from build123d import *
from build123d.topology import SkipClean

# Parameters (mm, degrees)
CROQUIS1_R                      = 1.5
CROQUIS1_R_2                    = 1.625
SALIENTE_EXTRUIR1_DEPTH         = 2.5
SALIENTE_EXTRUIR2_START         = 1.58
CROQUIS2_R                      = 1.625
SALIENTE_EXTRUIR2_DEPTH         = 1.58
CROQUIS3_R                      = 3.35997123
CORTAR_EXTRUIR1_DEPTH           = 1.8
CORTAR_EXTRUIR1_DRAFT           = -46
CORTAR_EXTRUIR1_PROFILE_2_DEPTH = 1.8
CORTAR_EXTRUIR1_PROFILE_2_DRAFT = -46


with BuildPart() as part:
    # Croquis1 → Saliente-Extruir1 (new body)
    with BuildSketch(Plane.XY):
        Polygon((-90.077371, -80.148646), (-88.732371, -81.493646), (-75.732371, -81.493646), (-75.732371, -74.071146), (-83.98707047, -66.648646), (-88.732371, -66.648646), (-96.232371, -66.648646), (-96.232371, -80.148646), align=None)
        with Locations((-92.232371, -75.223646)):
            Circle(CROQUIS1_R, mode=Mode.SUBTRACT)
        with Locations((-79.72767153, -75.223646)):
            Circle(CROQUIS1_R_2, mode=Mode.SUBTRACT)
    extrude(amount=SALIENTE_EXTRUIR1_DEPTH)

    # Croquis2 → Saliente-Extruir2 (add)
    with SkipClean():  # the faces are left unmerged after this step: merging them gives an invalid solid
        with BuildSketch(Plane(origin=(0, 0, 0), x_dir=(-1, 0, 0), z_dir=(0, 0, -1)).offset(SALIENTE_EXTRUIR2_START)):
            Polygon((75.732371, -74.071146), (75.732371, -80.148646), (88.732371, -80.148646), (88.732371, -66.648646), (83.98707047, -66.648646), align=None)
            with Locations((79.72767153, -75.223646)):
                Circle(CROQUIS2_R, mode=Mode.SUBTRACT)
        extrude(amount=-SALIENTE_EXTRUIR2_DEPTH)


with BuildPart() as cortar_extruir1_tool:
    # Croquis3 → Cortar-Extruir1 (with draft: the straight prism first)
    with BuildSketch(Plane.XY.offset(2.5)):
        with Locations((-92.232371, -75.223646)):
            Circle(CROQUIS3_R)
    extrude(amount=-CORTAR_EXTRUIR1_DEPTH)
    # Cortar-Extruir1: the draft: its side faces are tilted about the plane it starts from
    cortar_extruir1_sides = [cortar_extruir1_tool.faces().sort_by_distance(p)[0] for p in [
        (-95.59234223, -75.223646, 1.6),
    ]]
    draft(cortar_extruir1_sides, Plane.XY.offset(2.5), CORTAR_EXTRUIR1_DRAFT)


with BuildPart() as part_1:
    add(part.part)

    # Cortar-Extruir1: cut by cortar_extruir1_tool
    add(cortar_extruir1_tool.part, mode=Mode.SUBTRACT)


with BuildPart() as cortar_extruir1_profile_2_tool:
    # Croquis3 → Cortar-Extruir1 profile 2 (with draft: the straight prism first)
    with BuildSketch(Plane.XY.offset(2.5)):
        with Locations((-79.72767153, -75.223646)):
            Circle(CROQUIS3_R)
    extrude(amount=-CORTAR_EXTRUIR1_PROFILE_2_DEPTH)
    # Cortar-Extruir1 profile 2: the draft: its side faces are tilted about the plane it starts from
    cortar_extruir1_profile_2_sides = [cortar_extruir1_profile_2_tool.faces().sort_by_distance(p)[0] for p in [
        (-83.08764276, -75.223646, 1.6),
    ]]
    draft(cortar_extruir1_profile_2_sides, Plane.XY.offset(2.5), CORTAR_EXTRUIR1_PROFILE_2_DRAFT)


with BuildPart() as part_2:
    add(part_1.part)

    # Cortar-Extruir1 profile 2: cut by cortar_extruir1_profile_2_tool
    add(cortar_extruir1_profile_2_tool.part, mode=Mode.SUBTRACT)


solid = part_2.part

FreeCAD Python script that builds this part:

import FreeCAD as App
import Part
import Sketcher
from FreeCAD import Vector
Q = App.Units.Quantity


def faces_at(feature, points):
    """Names of the faces that lie closest to the given points."""
    faces = feature.Shape.Faces
    near = lambda p: min(range(len(faces)), key=lambda i: faces[i].distToShape(Part.Vertex(*p))[0])
    return sorted({f"Face{near(p) + 1}" for p in points})


def add_polygon(sketch, points):
    """Adds a closed chain of lines whose ends are joined by coincident constraints."""
    first, n = sketch.GeometryCount, len(points)
    for a, b in zip(points, points[1:] + points[:1]):
        sketch.addGeometry(Part.LineSegment(App.Vector(*a, 0), App.Vector(*b, 0)), False)
    for i in range(n):
        sketch.addConstraint(Sketcher.Constraint("Coincident", first + i, 2, first + (i + 1) % n, 1))

doc = App.newDocument("Part")
body = doc.addObject("PartDesign::Body", "Body")

sketch1 = body.newObject("Sketcher::SketchObject", "Sketch")
sketch1.AttachmentSupport = (doc.getObject("XY_Plane"), [""])
sketch1.MapMode = "FlatFace"
add_polygon(sketch1, [(-90.1, -80.1), (-88.7, -81.5), (-75.7, -81.5), (-75.7, -74.1), (-84, -66.6), (-96.2, -66.6), (-96.2, -80.1)])
sketch1.addGeometry(Part.Circle(Vector(-92.2, -75.2, 0), Vector(0, 0, 1), 1.5), False)
sketch1.addGeometry(Part.Circle(Vector(-79.7, -75.2, 0), Vector(0, 0, 1), 1.6), False)
sketch1.addConstraint([
    Sketcher.Constraint("Horizontal", 1),
    Sketcher.Constraint("Vertical", 2),
    Sketcher.Constraint("Horizontal", 4),
    Sketcher.Constraint("Vertical", 5),
    Sketcher.Constraint("Horizontal", 6),
    Sketcher.Constraint("Horizontal", 7, 3, 8, 3),
    Sketcher.Constraint("Diameter", 7, Q("3 mm")),
    Sketcher.Constraint("Diameter", 8, Q("3.25 mm")),
    Sketcher.Constraint("DistanceX", 1, 1, 1, 2, Q("13 mm")),
    Sketcher.Constraint("Angle", 0, Q("-45 deg")),
    Sketcher.Constraint("DistanceY", 5, 2, 5, 1, Q("13.5 mm")),
    Sketcher.Constraint("DistanceX", 4, 2, 7, 3, Q("4 mm")),
    Sketcher.Constraint("DistanceX", 7, 3, 0, 2, Q("3.5 mm")),
    Sketcher.Constraint("DistanceX", 6, 1, 6, 2, Q("6.155 mm")),
    Sketcher.Constraint("DistanceY", 0, 2, 7, 3, Q("6.27 mm")),
    Sketcher.Constraint("DistanceX", 4, 2, 4, 1, Q("12.245301 mm")),
    Sketcher.Constraint("DistanceY", 2, 1, 2, 2, Q("7.4225 mm")),
    Sketcher.Constraint("DistanceX", 7, 3, 8, 3, Q("12.504699 mm")),
    Sketcher.Constraint("DistanceX", 7, 3, -1, 1, Q("92.232371 mm")),
    Sketcher.Constraint("DistanceY", 7, 3, -1, 1, Q("75.223646 mm")),
])
pad1 = body.newObject("PartDesign::Pad", "Pad")
pad1.Profile = sketch1
pad1.Length = 2.5

sketch2 = body.newObject("Sketcher::SketchObject", "Sketch001")
sketch2.AttachmentSupport = (doc.getObject("XY_Plane"), [""])
sketch2.MapMode = "FlatFace"
sketch2.AttachmentOffset = App.Placement(Vector(0, 0, -1.58), App.Rotation())
add_polygon(sketch2, [(-75.7, -74.1), (-75.7, -80.1), (-88.7, -80.1), (-88.7, -66.6), (-84, -66.6)])
sketch2.addGeometry(Part.Circle(Vector(-79.7, -75.2, 0), Vector(0, 0, 1), 1.6), False)
sketch2.addConstraint([
    Sketcher.Constraint("Vertical", 0),
    Sketcher.Constraint("Horizontal", 1),
    Sketcher.Constraint("Vertical", 2),
    Sketcher.Constraint("Horizontal", 3),
    Sketcher.Constraint("Diameter", 5, Q("3.25 mm")),
    Sketcher.Constraint("DistanceX", 1, 2, 1, 1, Q("13 mm")),
    Sketcher.Constraint("DistanceY", 2, 1, 2, 2, Q("13.5 mm")),
    Sketcher.Constraint("DistanceX", 3, 1, 3, 2, Q("4.745301 mm")),
    Sketcher.Constraint("DistanceY", 0, 2, 0, 1, Q("6.0775 mm")),
    Sketcher.Constraint("DistanceY", 0, 2, 5, 3, Q("4.925 mm")),
    Sketcher.Constraint("DistanceX", 5, 3, 0, 2, Q("3.995301 mm")),
    Sketcher.Constraint("DistanceX", 5, 3, -1, 1, Q("79.727672 mm")),
    Sketcher.Constraint("DistanceY", 5, 3, -1, 1, Q("75.223646 mm")),
])
pad2 = body.newObject("PartDesign::Pad", "Pad001")
pad2.Profile = sketch2
pad2.Length = 1.58
body2 = doc.addObject("PartDesign::Body", "Body001")

sketch3 = body2.newObject("Sketcher::SketchObject", "Sketch002")
sketch3.AttachmentSupport = (doc.getObject("XY_Plane001"), [""])
sketch3.MapMode = "FlatFace"
sketch3.AttachmentOffset = App.Placement(Vector(0, 0, 2.5), App.Rotation())
sketch3.addGeometry(Part.Circle(Vector(-92.2, -75.2, 0), Vector(0, 0, 1), 3.4), False)
sketch3.addConstraint([
    Sketcher.Constraint("Diameter", 0, Q("6.719942 mm")),
    Sketcher.Constraint("DistanceX", 0, 3, -1, 1, Q("92.232371 mm")),
    Sketcher.Constraint("DistanceY", 0, 3, -1, 1, Q("75.223646 mm")),
])
pad3 = body2.newObject("PartDesign::Pad", "Pad002")
pad3.Profile = sketch3
pad3.Length = 1.8
pad3.Reversed = True
doc.recompute()

datumplane = body2.newObject("PartDesign::Plane", "DatumPlane")
datumplane.AttachmentSupport = (doc.getObject("XY_Plane001"), [""])
datumplane.MapMode = "FlatFace"
datumplane.AttachmentOffset = App.Placement(Vector(0, 0, 2.5), App.Rotation())
draft = body2.newObject("PartDesign::Draft", "Draft")
draft.Base = (pad3, faces_at(pad3, [(-95.592, -75.224, 1.6)]))
draft.NeutralPlane = (datumplane, [""])
draft.Angle = 46
draft.Reversed = True
doc.recompute()

boolean = body.newObject("PartDesign::Boolean", "Boolean")
boolean.Type = "Cut"
boolean.addObjects([body2])
body3 = doc.addObject("PartDesign::Body", "Body002")

sketch4 = body3.newObject("Sketcher::SketchObject", "Sketch003")
sketch4.AttachmentSupport = (doc.getObject("XY_Plane002"), [""])
sketch4.MapMode = "FlatFace"
sketch4.AttachmentOffset = App.Placement(Vector(0, 0, 2.5), App.Rotation())
sketch4.addGeometry(Part.Circle(Vector(-79.7, -75.2, 0), Vector(0, 0, 1), 3.4), False)
sketch4.addConstraint([
    Sketcher.Constraint("Diameter", 0, Q("6.719942 mm")),
    Sketcher.Constraint("DistanceX", 0, 3, -1, 1, Q("79.727672 mm")),
    Sketcher.Constraint("DistanceY", 0, 3, -1, 1, Q("75.223646 mm")),
])
pad4 = body3.newObject("PartDesign::Pad", "Pad003")
pad4.Profile = sketch4
pad4.Length = 1.8
pad4.Reversed = True
doc.recompute()

datumplane2 = body3.newObject("PartDesign::Plane", "DatumPlane001")
datumplane2.AttachmentSupport = (doc.getObject("XY_Plane002"), [""])
datumplane2.MapMode = "FlatFace"
datumplane2.AttachmentOffset = App.Placement(Vector(0, 0, 2.5), App.Rotation())
draft2 = body3.newObject("PartDesign::Draft", "Draft001")
draft2.Base = (pad4, faces_at(pad4, [(-83.088, -75.224, 1.6)]))
draft2.NeutralPlane = (datumplane2, [""])
draft2.Angle = 46
draft2.Reversed = True
doc.recompute()

boolean2 = body.newObject("PartDesign::Boolean", "Boolean001")
boolean2.Type = "Cut"
boolean2.addObjects([body3])

doc.recompute()
